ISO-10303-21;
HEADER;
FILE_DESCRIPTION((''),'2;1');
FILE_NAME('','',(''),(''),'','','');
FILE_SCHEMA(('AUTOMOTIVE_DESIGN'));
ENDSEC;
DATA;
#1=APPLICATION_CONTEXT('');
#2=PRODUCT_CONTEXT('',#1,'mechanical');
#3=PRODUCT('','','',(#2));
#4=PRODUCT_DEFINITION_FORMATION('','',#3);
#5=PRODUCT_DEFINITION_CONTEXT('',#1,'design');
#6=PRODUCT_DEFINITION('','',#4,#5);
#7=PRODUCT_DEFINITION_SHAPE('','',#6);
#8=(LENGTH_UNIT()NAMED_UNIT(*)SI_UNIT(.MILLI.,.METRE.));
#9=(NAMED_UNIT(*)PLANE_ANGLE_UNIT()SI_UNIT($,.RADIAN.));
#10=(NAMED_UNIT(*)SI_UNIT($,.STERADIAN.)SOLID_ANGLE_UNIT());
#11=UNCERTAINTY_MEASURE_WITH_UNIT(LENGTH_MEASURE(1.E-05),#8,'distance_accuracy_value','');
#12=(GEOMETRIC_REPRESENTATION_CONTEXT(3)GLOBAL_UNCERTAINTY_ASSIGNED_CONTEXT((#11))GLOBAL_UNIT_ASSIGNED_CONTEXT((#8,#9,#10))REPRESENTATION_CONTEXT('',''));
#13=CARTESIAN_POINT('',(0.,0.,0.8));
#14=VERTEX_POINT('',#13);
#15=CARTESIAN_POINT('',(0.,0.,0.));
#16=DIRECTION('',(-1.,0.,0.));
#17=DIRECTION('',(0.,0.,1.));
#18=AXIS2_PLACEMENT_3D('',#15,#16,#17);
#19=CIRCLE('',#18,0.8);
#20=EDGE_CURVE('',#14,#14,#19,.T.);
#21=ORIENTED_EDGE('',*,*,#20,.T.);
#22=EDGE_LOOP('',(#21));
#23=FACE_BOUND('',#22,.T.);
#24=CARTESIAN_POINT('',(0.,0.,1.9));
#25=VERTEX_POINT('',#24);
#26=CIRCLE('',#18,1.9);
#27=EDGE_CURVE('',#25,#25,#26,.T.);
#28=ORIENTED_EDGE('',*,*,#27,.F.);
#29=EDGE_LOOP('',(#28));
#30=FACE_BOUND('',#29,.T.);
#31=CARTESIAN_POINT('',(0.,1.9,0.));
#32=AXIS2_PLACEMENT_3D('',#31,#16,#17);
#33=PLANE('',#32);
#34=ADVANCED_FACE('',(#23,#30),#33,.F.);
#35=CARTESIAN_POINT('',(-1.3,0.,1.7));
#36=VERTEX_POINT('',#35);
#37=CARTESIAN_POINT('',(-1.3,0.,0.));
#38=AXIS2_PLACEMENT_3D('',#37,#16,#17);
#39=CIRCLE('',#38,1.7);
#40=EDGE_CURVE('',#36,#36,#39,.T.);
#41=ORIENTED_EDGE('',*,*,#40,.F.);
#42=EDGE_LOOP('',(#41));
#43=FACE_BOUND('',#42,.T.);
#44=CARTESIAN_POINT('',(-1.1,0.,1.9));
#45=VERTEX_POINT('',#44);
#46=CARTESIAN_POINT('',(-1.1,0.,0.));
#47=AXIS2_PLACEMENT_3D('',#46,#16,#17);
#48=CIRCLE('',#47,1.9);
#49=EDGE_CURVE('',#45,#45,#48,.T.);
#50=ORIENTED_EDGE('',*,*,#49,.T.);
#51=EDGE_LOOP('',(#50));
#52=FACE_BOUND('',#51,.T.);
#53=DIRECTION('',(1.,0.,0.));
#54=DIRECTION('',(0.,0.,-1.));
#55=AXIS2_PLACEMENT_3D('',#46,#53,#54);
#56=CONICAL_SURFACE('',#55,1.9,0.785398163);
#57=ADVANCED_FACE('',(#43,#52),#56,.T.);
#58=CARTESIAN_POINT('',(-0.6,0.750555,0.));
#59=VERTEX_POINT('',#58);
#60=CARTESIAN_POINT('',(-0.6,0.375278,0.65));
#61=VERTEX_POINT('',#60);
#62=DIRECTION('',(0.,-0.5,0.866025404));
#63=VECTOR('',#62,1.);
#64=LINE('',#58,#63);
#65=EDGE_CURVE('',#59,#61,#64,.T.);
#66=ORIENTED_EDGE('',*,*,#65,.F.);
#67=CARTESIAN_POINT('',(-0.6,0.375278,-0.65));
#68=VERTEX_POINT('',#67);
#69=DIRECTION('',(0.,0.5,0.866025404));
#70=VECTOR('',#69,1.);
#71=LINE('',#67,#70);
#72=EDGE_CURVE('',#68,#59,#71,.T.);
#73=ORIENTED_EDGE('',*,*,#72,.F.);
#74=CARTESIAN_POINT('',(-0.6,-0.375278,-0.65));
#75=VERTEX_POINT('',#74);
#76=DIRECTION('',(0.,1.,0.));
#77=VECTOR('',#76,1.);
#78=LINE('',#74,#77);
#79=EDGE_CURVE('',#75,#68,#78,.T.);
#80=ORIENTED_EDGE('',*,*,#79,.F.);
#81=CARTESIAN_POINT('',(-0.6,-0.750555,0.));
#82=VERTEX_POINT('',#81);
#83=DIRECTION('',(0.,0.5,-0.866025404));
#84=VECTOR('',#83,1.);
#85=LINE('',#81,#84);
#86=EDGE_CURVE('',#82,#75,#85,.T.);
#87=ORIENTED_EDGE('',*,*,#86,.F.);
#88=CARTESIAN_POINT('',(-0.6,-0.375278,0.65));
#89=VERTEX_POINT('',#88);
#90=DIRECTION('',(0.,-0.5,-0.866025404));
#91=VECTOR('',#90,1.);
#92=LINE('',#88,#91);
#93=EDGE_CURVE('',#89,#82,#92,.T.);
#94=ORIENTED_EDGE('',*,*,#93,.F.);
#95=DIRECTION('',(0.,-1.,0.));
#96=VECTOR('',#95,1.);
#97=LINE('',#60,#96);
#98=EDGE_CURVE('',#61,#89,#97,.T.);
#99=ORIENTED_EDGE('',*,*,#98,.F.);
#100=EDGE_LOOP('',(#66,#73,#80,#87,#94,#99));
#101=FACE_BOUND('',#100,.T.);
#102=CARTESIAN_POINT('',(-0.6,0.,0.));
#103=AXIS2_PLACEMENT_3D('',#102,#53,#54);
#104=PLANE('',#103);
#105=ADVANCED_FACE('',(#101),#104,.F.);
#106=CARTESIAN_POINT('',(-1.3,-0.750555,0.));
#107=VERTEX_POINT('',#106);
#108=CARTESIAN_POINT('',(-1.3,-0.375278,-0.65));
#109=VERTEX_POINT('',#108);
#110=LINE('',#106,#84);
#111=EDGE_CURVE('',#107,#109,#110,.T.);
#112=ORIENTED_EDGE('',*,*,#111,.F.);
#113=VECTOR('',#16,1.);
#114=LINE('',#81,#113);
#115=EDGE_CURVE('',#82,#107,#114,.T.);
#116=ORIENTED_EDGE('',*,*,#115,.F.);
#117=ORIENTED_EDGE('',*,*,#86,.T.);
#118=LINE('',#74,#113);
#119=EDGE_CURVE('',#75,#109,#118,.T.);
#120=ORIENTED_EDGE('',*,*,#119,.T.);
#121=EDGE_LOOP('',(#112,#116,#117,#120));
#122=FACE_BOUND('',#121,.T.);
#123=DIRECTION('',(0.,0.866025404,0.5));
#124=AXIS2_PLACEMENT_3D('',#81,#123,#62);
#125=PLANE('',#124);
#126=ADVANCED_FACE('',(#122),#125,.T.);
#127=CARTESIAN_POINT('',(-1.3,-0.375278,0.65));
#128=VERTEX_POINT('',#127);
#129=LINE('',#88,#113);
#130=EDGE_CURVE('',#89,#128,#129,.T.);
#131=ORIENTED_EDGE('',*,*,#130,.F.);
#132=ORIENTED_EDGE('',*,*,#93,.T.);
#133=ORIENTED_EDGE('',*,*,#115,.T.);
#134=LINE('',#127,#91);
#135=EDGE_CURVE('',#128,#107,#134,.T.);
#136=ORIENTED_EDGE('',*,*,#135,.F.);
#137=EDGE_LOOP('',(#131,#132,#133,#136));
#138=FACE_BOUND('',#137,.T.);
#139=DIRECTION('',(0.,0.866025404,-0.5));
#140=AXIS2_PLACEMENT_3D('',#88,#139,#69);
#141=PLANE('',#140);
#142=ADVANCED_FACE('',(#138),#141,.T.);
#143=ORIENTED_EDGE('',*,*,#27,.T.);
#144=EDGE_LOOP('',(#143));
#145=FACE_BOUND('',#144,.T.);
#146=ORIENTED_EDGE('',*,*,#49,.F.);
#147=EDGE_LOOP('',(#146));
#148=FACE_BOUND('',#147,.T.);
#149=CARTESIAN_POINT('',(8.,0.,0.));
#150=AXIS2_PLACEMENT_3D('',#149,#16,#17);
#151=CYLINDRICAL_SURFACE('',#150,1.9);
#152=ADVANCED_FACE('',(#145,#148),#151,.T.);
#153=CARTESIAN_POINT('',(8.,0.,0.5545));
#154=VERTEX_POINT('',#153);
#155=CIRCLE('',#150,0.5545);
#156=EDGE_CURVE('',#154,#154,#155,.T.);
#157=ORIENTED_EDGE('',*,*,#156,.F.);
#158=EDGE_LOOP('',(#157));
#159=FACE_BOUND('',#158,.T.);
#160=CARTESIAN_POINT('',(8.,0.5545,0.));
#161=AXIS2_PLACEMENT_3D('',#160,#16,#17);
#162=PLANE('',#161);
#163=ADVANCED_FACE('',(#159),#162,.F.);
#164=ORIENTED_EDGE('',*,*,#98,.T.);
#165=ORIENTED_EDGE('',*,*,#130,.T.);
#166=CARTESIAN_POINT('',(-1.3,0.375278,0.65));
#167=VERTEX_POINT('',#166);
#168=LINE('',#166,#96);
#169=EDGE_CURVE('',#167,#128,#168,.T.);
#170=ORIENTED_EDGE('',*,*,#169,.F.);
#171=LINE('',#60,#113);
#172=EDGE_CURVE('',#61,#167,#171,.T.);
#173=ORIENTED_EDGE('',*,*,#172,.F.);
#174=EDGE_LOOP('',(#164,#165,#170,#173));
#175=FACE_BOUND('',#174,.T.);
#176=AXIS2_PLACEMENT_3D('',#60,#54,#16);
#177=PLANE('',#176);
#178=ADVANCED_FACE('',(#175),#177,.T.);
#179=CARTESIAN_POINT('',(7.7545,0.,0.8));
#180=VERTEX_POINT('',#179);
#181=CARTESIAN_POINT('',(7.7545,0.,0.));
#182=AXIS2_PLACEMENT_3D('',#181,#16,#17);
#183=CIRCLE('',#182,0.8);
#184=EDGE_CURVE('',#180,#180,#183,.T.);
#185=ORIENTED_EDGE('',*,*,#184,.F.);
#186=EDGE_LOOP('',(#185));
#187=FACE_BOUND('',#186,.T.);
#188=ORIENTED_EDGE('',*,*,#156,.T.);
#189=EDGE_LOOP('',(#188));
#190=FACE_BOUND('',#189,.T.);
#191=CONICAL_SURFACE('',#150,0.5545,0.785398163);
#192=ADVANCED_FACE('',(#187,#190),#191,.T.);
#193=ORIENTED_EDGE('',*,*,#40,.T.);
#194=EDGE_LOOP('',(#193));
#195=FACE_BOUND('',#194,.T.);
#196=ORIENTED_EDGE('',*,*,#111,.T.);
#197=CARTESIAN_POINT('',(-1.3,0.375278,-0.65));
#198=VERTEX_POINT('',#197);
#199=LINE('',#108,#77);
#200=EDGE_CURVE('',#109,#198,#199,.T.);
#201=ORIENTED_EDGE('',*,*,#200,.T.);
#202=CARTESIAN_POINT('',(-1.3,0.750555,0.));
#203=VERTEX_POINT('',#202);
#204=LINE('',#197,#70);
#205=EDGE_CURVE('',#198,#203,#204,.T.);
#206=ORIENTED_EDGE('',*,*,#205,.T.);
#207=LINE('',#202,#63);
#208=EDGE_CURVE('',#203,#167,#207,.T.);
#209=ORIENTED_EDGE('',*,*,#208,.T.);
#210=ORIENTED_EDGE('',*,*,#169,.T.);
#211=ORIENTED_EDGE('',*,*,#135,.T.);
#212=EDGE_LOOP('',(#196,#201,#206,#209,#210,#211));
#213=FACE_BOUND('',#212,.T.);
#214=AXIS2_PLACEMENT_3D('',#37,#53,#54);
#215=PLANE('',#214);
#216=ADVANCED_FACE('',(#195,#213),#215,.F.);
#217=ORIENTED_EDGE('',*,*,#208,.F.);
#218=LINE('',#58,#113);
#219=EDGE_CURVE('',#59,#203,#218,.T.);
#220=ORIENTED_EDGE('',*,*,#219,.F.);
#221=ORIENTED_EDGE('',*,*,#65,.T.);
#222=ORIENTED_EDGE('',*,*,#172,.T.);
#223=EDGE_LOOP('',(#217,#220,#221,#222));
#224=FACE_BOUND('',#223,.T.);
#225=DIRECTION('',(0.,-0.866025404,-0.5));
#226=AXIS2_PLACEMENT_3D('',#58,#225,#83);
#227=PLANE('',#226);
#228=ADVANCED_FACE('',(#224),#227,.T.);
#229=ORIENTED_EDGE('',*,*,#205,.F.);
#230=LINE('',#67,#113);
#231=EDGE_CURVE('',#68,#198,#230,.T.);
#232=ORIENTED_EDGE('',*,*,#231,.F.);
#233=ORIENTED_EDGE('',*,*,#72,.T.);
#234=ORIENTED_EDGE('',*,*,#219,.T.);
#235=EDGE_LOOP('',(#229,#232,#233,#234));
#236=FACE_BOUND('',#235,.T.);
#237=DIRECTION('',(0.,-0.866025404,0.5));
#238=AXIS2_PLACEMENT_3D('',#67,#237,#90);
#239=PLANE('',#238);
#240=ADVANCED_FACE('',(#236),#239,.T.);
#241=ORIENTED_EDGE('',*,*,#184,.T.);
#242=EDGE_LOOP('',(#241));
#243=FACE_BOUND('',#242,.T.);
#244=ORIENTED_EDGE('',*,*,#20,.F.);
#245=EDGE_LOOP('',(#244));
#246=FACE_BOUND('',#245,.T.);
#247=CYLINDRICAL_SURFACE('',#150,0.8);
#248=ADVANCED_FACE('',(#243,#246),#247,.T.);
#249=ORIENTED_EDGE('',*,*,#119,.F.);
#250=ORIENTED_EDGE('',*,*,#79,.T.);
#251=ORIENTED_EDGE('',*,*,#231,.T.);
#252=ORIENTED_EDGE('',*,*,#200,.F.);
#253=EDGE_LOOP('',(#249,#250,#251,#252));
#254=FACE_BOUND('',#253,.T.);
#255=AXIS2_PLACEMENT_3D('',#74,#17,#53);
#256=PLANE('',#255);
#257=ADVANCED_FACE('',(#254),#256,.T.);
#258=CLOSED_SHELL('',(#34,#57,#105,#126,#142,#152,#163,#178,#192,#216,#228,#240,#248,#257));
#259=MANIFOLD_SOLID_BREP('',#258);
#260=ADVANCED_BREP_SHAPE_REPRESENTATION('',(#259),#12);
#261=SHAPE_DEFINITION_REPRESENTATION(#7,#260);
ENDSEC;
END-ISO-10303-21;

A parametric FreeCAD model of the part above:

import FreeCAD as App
import Part
import Sketcher
from FreeCAD import Vector
Q = App.Units.Quantity


def add_polygon(sketch, points):
    """Adds a closed chain of lines whose ends are joined by coincident constraints."""
    first, n = sketch.GeometryCount, len(points)
    for a, b in zip(points, points[1:] + points[:1]):
        sketch.addGeometry(Part.LineSegment(App.Vector(*a, 0), App.Vector(*b, 0)), False)
    for i in range(n):
        sketch.addConstraint(Sketcher.Constraint("Coincident", first + i, 2, first + (i + 1) % n, 1))

doc = App.newDocument("Part")
params = doc.addObject("Spreadsheet::Sheet", "Params")
for row, (alias, value) in enumerate([
    ("sketch1_width", "9.3 mm"),
    ("sketch1_width2", "1.1 mm"),
    ("sketch1_height", "1.7 mm"),
    ("revolution_angle", "360 deg"),
    ("pocket1_length", "0.7 mm"),
], start=1):
    params.set(f"A{row}", alias)
    params.set(f"B{row}", "=" + value)
    params.setAlias(f"B{row}", alias)

body = doc.addObject("PartDesign::Body", "Body")

sketch1 = body.newObject("Sketcher::SketchObject", "Sketch")
sketch1.AttachmentSupport = (doc.getObject("XY_Plane"), [""])
sketch1.MapMode = "FlatFace"
add_polygon(sketch1, [(-1.3, 1.7), (-1.3, 0), (8, 0), (8, 0.55), (7.75, 0.8), (0, 0.8), (0, 1.9), (-1.1, 1.9)])
sketch1.addConstraint(Sketcher.Constraint("Vertical", 0))
sketch1.addConstraint(Sketcher.Constraint("Horizontal", 1))
sketch1.addConstraint(Sketcher.Constraint("Vertical", 2))
sketch1.addConstraint(Sketcher.Constraint("Horizontal", 4))
sketch1.addConstraint(Sketcher.Constraint("Vertical", 5))
sketch1.addConstraint(Sketcher.Constraint("Horizontal", 6))
sketch1.addConstraint(Sketcher.Constraint("PointOnObject", 0, 2, -1))
sketch1.addConstraint(Sketcher.Constraint("PointOnObject", 4, 2, -2))
sketch1.addConstraint(Sketcher.Constraint("Perpendicular", 3, 7))
sketch1.addConstraint(Sketcher.Constraint("Equal", 6, 5))
sketch1.addConstraint(Sketcher.Constraint("Angle", 3, Q("135 deg")))
sketch1.addConstraint(Sketcher.Constraint("DistanceX", 1, 1, 1, 2, Q("9.3 mm")))
sketch1.addConstraint(Sketcher.Constraint("DistanceX", 6, 2, 6, 1, Q("1.1 mm")))
sketch1.addConstraint(Sketcher.Constraint("DistanceY", 0, 2, 0, 1, Q("1.7 mm")))
sketch1.addConstraint(Sketcher.Constraint("DistanceX", -1, 1, 1, 2, Q("8 mm")))
sketch1.addConstraint(Sketcher.Constraint("DistanceX", 4, 2, 4, 1, Q("7.7545 mm")))
sketch1.setExpression("Constraints[19]", "Params.sketch1_width")
sketch1.setExpression("Constraints[20]", "Params.sketch1_width2")
sketch1.setExpression("Constraints[21]", "Params.sketch1_height")
revolution = body.newObject("PartDesign::Revolution", "Revolution")
revolution.Profile = sketch1
revolution.ReferenceAxis = (sketch1, ["H_Axis"])
revolution.setExpression("Angle", "Params.revolution_angle")

sketch2 = body.newObject("Sketcher::SketchObject", "Sketch001")
sketch2.AttachmentSupport = (doc.getObject("YZ_Plane"), [""])
sketch2.MapMode = "FlatFace"
sketch2.AttachmentOffset = App.Placement(Vector(0, 0, -1.3), App.Rotation())
add_polygon(sketch2, [(-0.4, 0.7), (-0.8, 0), (-0.4, -0.7), (0.4, -0.7), (0.8, 0), (0.4, 0.7)])
sketch2.addConstraint(Sketcher.Constraint("Horizontal", 2))
sketch2.addConstraint(Sketcher.Constraint("Horizontal", 5))
sketch2.addConstraint(Sketcher.Constraint("Symmetric", 0, 2, 3, 2, -1, 1))
sketch2.addConstraint(Sketcher.Constraint("Symmetric", 1, 2, 4, 2, -1, 1))
sketch2.addConstraint(Sketcher.Constraint("PointOnObject", 0, 2, -1))
sketch2.addConstraint(Sketcher.Constraint("Parallel", 0, 3))
sketch2.addConstraint(Sketcher.Constraint("Vertical", 2, 2, 4, 2))
sketch2.addConstraint(Sketcher.Constraint("Angle", 0, Q("-120 deg")))
sketch2.addConstraint(Sketcher.Constraint("DistanceY", 2, 2, 4, 2, Q("1.3 mm")))
sketch2.addConstraint(Sketcher.Constraint("DistanceX", 2, 1, 2, 2, Q("0.750555 mm")))
pocket1 = body.newObject("PartDesign::Pocket", "Pocket")
pocket1.Profile = sketch2
pocket1.setExpression("Length", "Params.pocket1_length")
pocket1.Reversed = True

doc.recompute()
